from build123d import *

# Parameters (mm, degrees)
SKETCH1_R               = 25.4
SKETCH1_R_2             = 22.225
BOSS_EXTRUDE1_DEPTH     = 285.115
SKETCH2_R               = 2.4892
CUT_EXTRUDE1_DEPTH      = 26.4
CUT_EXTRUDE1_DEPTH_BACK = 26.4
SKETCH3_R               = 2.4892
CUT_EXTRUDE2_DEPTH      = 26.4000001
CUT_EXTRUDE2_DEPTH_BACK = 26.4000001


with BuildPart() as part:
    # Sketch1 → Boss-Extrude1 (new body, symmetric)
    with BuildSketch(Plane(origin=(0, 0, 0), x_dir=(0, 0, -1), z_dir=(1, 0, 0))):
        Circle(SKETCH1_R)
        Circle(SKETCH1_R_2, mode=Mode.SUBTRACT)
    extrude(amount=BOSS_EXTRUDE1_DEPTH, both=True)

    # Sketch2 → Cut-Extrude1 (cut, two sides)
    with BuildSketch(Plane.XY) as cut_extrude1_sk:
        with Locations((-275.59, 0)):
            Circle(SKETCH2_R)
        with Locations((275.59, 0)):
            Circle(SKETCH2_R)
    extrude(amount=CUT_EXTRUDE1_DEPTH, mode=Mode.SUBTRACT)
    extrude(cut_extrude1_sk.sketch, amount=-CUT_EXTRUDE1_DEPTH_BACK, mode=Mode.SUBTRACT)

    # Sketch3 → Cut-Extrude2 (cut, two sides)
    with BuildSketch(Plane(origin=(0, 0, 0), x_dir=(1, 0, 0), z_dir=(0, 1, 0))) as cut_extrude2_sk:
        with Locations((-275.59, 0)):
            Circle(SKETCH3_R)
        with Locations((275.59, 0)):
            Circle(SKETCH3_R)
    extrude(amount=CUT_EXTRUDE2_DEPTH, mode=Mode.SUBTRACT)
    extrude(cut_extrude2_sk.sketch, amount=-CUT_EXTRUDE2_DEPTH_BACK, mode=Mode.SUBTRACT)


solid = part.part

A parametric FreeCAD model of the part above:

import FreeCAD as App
import Part
import Sketcher

V = App.Vector
Q = App.Units.Quantity

doc = App.newDocument("Part")
body = doc.addObject("PartDesign::Body", "Body")

# Sketch on YZ plane
sketch1 = body.newObject("Sketcher::SketchObject", "Sketch")
sketch1.AttachmentSupport = (doc.getObject("YZ_Plane"), [""])
sketch1.MapMode = "FlatFace"
sketch1.addGeometry(Part.Circle(V(0, 0, 0), V(0, 0, 1), 25), False)
sketch1.addGeometry(Part.Circle(V(0, 0, 0), V(0, 0, 1), 22), False)
sketch1.addConstraint(Sketcher.Constraint("Coincident", 0, 3, -1, 1))
sketch1.addConstraint(Sketcher.Constraint("Coincident", 1, 3, -1, 1))
sketch1.addConstraint(Sketcher.Constraint("Diameter", 0, Q("2 in")))
sketch1.addConstraint(Sketcher.Constraint("Diameter", 1, Q("1.75 in")))
pad1 = body.newObject("PartDesign::Pad", "Pad")
pad1.Profile = sketch1
pad1.Length = Q("22.45 in")
pad1.Midplane = True

# Sketch on XY plane
sketch2 = body.newObject("Sketcher::SketchObject", "Sketch001")
sketch2.AttachmentSupport = (doc.getObject("XY_Plane"), [""])
sketch2.MapMode = "FlatFace"
sketch2.addGeometry(Part.Circle(V(-275.6, 0, 0), V(0, 0, 1), 2.5), False)
sketch2.addGeometry(Part.Circle(V(275.6, 0, 0), V(0, 0, 1), 2.5), False)
sketch2.addConstraint(Sketcher.Constraint("Equal", 0, 1))
sketch2.addConstraint(Sketcher.Constraint("Symmetric", 0, 3, 1, 3, -1, 1))
sketch2.addConstraint(Sketcher.Constraint("PointOnObject", 0, 3, -1))
sketch2.addConstraint(Sketcher.Constraint("Diameter", 0, Q("0.196 in")))
sketch2.addConstraint(Sketcher.Constraint("DistanceX", 0, 3, 1, 3, Q("21.7 in")))
pocket1 = body.newObject("PartDesign::Pocket", "Pocket")
pocket1.Profile = sketch2
pocket1.Type = "ThroughAll"
pocket1.Midplane = True

# Sketch on XZ plane
sketch3 = body.newObject("Sketcher::SketchObject", "Sketch002")
sketch3.AttachmentSupport = (doc.getObject("XZ_Plane"), [""])
sketch3.MapMode = "FlatFace"
sketch3.addGeometry(Part.Circle(V(-275.6, 0, 0), V(0, 0, 1), 2.5), False)
sketch3.addGeometry(Part.Circle(V(275.6, 0, 0), V(0, 0, 1), 2.5), False)
sketch3.addConstraint(Sketcher.Constraint("Equal", 0, 1))
sketch3.addConstraint(Sketcher.Constraint("Symmetric", 0, 3, 1, 3, -1, 1))
sketch3.addConstraint(Sketcher.Constraint("PointOnObject", 0, 3, -1))
sketch3.addConstraint(Sketcher.Constraint("Diameter", 0, Q("0.196 in")))
sketch3.addConstraint(Sketcher.Constraint("DistanceX", 0, 3, 1, 3, Q("21.7 in")))
pocket2 = body.newObject("PartDesign::Pocket", "Pocket001")
pocket2.Profile = sketch3
pocket2.Type = "ThroughAll"
pocket2.Midplane = True

doc.recompute()
